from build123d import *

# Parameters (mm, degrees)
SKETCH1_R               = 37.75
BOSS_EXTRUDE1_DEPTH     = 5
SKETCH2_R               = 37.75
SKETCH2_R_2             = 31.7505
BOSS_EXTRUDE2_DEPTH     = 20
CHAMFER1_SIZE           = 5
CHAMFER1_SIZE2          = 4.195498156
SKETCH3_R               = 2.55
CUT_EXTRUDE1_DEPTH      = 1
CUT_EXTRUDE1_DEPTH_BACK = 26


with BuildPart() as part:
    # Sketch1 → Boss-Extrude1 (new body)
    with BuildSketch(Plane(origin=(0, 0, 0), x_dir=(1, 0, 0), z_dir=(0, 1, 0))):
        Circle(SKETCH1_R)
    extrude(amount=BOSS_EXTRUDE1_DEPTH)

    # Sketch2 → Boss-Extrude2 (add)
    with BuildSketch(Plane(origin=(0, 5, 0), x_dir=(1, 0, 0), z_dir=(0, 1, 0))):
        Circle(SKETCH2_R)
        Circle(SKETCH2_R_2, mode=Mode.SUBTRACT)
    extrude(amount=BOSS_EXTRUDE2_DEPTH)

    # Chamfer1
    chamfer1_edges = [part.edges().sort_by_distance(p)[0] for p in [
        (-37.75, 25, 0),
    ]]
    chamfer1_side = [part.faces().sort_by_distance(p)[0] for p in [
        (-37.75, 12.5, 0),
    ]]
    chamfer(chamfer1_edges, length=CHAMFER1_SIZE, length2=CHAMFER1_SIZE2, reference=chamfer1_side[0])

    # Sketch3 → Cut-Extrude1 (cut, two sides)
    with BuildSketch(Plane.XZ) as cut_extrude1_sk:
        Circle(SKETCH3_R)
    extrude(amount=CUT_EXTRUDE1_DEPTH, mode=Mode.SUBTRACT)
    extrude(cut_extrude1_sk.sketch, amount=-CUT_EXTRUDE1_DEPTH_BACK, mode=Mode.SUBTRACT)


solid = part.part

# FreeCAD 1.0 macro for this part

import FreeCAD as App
import Part
import Sketcher
Q = App.Units.Quantity


def edges_at(feature, points):
    """Names of the edges that pass closest to the given points."""
    edges = feature.Shape.Edges
    near = lambda p: min(range(len(edges)), key=lambda i: edges[i].distToShape(Part.Vertex(*p))[0])
    return sorted({f"Edge{near(p) + 1}" for p in points})

doc = App.newDocument("Part")
params = doc.addObject("Spreadsheet::Sheet", "Params")
for row, (alias, value) in enumerate([
    ("sketch1_diameter", "75.5 mm"),
    ("pad1_length", "5 mm"),
    ("sketch2_diameter", "75.5 mm"),
    ("pad2_length", "20 mm"),
    ("chamfer_size", "5 mm"),
    ("chamfer_size2", "4.195498 mm"),
    ("sketch3_diameter", "5.1 mm"),
], start=1):
    params.set(f"A{row}", alias)
    params.set(f"B{row}", "=" + value)
    params.setAlias(f"B{row}", alias)

body = doc.addObject("PartDesign::Body", "Body")

# Sketch on XZ plane
sketch1 = doc.addObject("Sketcher::SketchObject", "Sketch")
body.addObject(sketch1)
sketch1.AttachmentSupport = (doc.XZ_Plane, [""])
sketch1.MapMode = "FlatFace"
sketch1.addGeometry(Part.Circle(App.Vector(0, 0, 0), App.Vector(0, 0, 1), 38), False)
sketch1.addConstraint(Sketcher.Constraint("Coincident", 0, 3, -1, 1))
sketch1.addConstraint(Sketcher.Constraint("Diameter", 0, Q("75.5 mm")))
sketch1.setExpression("Constraints[1]", "Params.sketch1_diameter")
pad1 = doc.addObject("PartDesign::Pad", "Pad")
body.addObject(pad1)
pad1.Profile = sketch1
pad1.setExpression("Length", "Params.pad1_length")
pad1.Reversed = True

# Sketch on XZ plane
sketch2 = doc.addObject("Sketcher::SketchObject", "Sketch001")
body.addObject(sketch2)
sketch2.AttachmentSupport = (doc.XZ_Plane, [""])
sketch2.MapMode = "FlatFace"
sketch2.AttachmentOffset = App.Placement(App.Vector(0, 0, -5), App.Rotation())
sketch2.addGeometry(Part.Circle(App.Vector(0, 0, 0), App.Vector(0, 0, 1), 38), False)
sketch2.addGeometry(Part.Circle(App.Vector(0, 0, 0), App.Vector(0, 0, 1), 32), False)
sketch2.addConstraint(Sketcher.Constraint("Coincident", 0, 3, -1, 1))
sketch2.addConstraint(Sketcher.Constraint("Coincident", 1, 3, -1, 1))
sketch2.addConstraint(Sketcher.Constraint("Diameter", 0, Q("75.5 mm")))
sketch2.addConstraint(Sketcher.Constraint("Diameter", 1, Q("63.501 mm")))
sketch2.setExpression("Constraints[2]", "Params.sketch2_diameter")
pad2 = doc.addObject("PartDesign::Pad", "Pad001")
body.addObject(pad2)
pad2.Profile = sketch2
pad2.setExpression("Length", "Params.pad2_length")
pad2.Reversed = True
doc.recompute()

chamfer = doc.addObject("PartDesign::Chamfer", "Chamfer")
body.addObject(chamfer)
chamfer.Base = (pad2, edges_at(pad2, [(-37.75, 25, 0)]))
chamfer.ChamferType = "Two distances"
chamfer.setExpression("Size", "Params.chamfer_size")
chamfer.setExpression("Size2", "Params.chamfer_size2")

# Sketch on XZ plane
sketch3 = doc.addObject("Sketcher::SketchObject", "Sketch002")
body.addObject(sketch3)
sketch3.AttachmentSupport = (doc.XZ_Plane, [""])
sketch3.MapMode = "FlatFace"
sketch3.addGeometry(Part.Circle(App.Vector(0, 0, 0), App.Vector(0, 0, 1), 2.5), False)
sketch3.addConstraint(Sketcher.Constraint("Coincident", 0, 3, -1, 1))
sketch3.addConstraint(Sketcher.Constraint("Diameter", 0, Q("5.1 mm")))
sketch3.setExpression("Constraints[1]", "Params.sketch3_diameter")
pocket1 = doc.addObject("PartDesign::Pocket", "Pocket")
body.addObject(pocket1)
pocket1.Profile = sketch3
pocket1.Type = "ThroughAll"
pocket1.Midplane = True

doc.recompute()
